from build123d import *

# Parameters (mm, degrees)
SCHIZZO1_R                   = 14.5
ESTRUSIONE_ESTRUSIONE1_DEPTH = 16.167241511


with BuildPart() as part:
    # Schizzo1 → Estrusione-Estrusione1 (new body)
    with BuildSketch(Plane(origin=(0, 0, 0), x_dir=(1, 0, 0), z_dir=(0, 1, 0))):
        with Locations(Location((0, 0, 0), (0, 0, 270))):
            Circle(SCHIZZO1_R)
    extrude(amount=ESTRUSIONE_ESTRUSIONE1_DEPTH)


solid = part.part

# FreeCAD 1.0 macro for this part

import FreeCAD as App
import Part
import Sketcher
from FreeCAD import Vector

doc = App.newDocument("Part")
body = doc.addObject("PartDesign::Body", "Body")

# Sketch on XZ plane
sketch1 = doc.addObject("Sketcher::SketchObject", "Sketch")
body.addObject(sketch1)
sketch1.AttachmentSupport = (doc.XZ_Plane, [""])
sketch1.MapMode = "FlatFace"
sketch1.addGeometry(Part.Circle(Vector(0, 0, 0), Vector(0, 0, 1), 14.5), False)
sketch1.addConstraint(Sketcher.Constraint("Coincident", 0, 3, -1, 1))
sketch1.addConstraint(Sketcher.Constraint("Diameter", 0, 29.0))
pad1 = doc.addObject("PartDesign::Pad", "Pad")
body.addObject(pad1)
pad1.Profile = sketch1
pad1.Length = 16.167242
pad1.Reversed = True

doc.recompute()
